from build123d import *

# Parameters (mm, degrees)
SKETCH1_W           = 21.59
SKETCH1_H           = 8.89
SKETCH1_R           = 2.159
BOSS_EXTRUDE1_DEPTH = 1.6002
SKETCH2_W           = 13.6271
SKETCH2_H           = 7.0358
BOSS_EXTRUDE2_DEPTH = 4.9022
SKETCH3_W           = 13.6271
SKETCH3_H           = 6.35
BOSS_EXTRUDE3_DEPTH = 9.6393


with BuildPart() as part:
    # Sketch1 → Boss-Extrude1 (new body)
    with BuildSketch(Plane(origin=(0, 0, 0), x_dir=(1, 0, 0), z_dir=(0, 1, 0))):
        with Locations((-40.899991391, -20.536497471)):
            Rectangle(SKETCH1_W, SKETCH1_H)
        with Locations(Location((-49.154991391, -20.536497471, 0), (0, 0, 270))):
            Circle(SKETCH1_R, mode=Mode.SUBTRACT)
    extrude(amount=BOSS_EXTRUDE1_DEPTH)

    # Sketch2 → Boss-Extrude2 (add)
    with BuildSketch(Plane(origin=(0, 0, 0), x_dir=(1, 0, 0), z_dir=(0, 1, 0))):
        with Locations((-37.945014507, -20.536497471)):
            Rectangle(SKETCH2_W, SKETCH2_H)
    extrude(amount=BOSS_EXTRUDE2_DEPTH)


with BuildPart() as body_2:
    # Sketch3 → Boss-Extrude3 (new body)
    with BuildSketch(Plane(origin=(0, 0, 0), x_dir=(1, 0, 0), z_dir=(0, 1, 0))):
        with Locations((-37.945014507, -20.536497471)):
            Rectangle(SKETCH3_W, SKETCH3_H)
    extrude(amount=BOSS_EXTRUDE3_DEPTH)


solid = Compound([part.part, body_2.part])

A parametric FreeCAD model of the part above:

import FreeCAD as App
import Part
import Sketcher
Q = App.Units.Quantity

doc = App.newDocument("Part")
body = doc.addObject("PartDesign::Body", "Body")

# Sketch on XZ plane
sketch1 = body.newObject("Sketcher::SketchObject", "Sketch")
sketch1.AttachmentSupport = (doc.getObject("XZ_Plane"), [""])
sketch1.MapMode = "FlatFace"
sketch1.addGeometry([
    Part.LineSegment(App.Vector(-51.7, 16.1, 0), App.Vector(-51.7, 25, 0)),  # 0
    Part.LineSegment(App.Vector(-51.7, 25, 0), App.Vector(-30.1, 25, 0)),  # 1
    Part.LineSegment(App.Vector(-30.1, 25, 0), App.Vector(-30.1, 16.1, 0)),  # 2
    Part.LineSegment(App.Vector(-30.1, 16.1, 0), App.Vector(-51.7, 16.1, 0)),  # 3
    Part.Circle(App.Vector(-49.2, 20.5, 0), App.Vector(0, 0, 1), 2.2),  # 4
], False)
sketch1.addConstraint([
    Sketcher.Constraint("Coincident", 0, 2, 1, 1),
    Sketcher.Constraint("Coincident", 1, 2, 2, 1),
    Sketcher.Constraint("Coincident", 2, 2, 3, 1),
    Sketcher.Constraint("Coincident", 3, 2, 0, 1),
    Sketcher.Constraint("Vertical", 0),
    Sketcher.Constraint("Horizontal", 1),
    Sketcher.Constraint("Vertical", 2),
    Sketcher.Constraint("Horizontal", 3),
    Sketcher.Constraint("Diameter", 4, Q("0.17 in")),
    Sketcher.Constraint("DistanceX", 1, 1, 1, 2, Q("0.85 in")),
    Sketcher.Constraint("DistanceY", 0, 1, 0, 2, Q("0.35 in")),
    Sketcher.Constraint("DistanceX", 0, 2, 4, 3, Q("0.1 in")),
    Sketcher.Constraint("DistanceY", 4, 3, 0, 2, Q("0.175 in")),
    Sketcher.Constraint("DistanceX", 4, 3, -1, 1, 49.154991),
    Sketcher.Constraint("DistanceY", -1, 1, 4, 3, 20.536497),
])
pad1 = body.newObject("PartDesign::Pad", "Pad")
pad1.Profile = sketch1
pad1.Length = Q("0.063 in")
pad1.Reversed = True

# Sketch on XZ plane
sketch2 = body.newObject("Sketcher::SketchObject", "Sketch001")
sketch2.AttachmentSupport = (doc.getObject("XZ_Plane"), [""])
sketch2.MapMode = "FlatFace"
sketch2.addGeometry([
    Part.LineSegment(App.Vector(-45, 17, 0), App.Vector(-45, 24, 0)),
    Part.LineSegment(App.Vector(-45, 24, 0), App.Vector(-31, 24, 0)),
    Part.LineSegment(App.Vector(-31, 24, 0), App.Vector(-31, 17, 0)),
    Part.LineSegment(App.Vector(-31, 17, 0), App.Vector(-45, 17, 0)),
], False)
sketch2.addConstraint([
    Sketcher.Constraint("Coincident", 0, 2, 1, 1),
    Sketcher.Constraint("Coincident", 1, 2, 2, 1),
    Sketcher.Constraint("Coincident", 2, 2, 3, 1),
    Sketcher.Constraint("Coincident", 3, 2, 0, 1),
    Sketcher.Constraint("Vertical", 0),
    Sketcher.Constraint("Horizontal", 1),
    Sketcher.Constraint("Vertical", 2),
    Sketcher.Constraint("Horizontal", 3),
    Sketcher.Constraint("DistanceY", 0, 1, 0, 2, Q("0.277 in")),
    Sketcher.Constraint("DistanceX", 1, 1, 1, 2, Q("0.5365 in")),
    Sketcher.Constraint("DistanceX", 0, 2, -1, 1, 44.758565),
    Sketcher.Constraint("DistanceY", -1, 1, 0, 2, 24.054397),
])
pad2 = body.newObject("PartDesign::Pad", "Pad001")
pad2.Profile = sketch2
pad2.Length = Q("0.193 in")
pad2.Reversed = True
body2 = doc.addObject("PartDesign::Body", "Body001")

# Sketch on XZ plane
sketch3 = body2.newObject("Sketcher::SketchObject", "Sketch002")
sketch3.AttachmentSupport = (doc.getObject("XZ_Plane001"), [""])
sketch3.MapMode = "FlatFace"
sketch3.addGeometry([
    Part.LineSegment(App.Vector(-45, 17, 0), App.Vector(-45, 24, 0)),
    Part.LineSegment(App.Vector(-45, 24, 0), App.Vector(-31, 24, 0)),
    Part.LineSegment(App.Vector(-31, 24, 0), App.Vector(-31, 17, 0)),
    Part.LineSegment(App.Vector(-31, 17, 0), App.Vector(-45, 17, 0)),
], False)
sketch3.addConstraint([
    Sketcher.Constraint("Coincident", 0, 2, 1, 1),
    Sketcher.Constraint("Coincident", 1, 2, 2, 1),
    Sketcher.Constraint("Coincident", 2, 2, 3, 1),
    Sketcher.Constraint("Coincident", 3, 2, 0, 1),
    Sketcher.Constraint("Vertical", 0),
    Sketcher.Constraint("Horizontal", 1),
    Sketcher.Constraint("Vertical", 2),
    Sketcher.Constraint("Horizontal", 3),
    Sketcher.Constraint("DistanceY", 0, 1, 0, 2, Q("0.25 in")),
    Sketcher.Constraint("DistanceX", 1, 1, 1, 2, Q("0.5365 in")),
    Sketcher.Constraint("DistanceX", 0, 2, -1, 1, 44.758565),
    Sketcher.Constraint("DistanceY", -1, 1, 0, 2, 23.711497),
])
pad3 = body2.newObject("PartDesign::Pad", "Pad002")
pad3.Profile = sketch3
pad3.Length = Q("0.3795 in")
pad3.Reversed = True

doc.recompute()
